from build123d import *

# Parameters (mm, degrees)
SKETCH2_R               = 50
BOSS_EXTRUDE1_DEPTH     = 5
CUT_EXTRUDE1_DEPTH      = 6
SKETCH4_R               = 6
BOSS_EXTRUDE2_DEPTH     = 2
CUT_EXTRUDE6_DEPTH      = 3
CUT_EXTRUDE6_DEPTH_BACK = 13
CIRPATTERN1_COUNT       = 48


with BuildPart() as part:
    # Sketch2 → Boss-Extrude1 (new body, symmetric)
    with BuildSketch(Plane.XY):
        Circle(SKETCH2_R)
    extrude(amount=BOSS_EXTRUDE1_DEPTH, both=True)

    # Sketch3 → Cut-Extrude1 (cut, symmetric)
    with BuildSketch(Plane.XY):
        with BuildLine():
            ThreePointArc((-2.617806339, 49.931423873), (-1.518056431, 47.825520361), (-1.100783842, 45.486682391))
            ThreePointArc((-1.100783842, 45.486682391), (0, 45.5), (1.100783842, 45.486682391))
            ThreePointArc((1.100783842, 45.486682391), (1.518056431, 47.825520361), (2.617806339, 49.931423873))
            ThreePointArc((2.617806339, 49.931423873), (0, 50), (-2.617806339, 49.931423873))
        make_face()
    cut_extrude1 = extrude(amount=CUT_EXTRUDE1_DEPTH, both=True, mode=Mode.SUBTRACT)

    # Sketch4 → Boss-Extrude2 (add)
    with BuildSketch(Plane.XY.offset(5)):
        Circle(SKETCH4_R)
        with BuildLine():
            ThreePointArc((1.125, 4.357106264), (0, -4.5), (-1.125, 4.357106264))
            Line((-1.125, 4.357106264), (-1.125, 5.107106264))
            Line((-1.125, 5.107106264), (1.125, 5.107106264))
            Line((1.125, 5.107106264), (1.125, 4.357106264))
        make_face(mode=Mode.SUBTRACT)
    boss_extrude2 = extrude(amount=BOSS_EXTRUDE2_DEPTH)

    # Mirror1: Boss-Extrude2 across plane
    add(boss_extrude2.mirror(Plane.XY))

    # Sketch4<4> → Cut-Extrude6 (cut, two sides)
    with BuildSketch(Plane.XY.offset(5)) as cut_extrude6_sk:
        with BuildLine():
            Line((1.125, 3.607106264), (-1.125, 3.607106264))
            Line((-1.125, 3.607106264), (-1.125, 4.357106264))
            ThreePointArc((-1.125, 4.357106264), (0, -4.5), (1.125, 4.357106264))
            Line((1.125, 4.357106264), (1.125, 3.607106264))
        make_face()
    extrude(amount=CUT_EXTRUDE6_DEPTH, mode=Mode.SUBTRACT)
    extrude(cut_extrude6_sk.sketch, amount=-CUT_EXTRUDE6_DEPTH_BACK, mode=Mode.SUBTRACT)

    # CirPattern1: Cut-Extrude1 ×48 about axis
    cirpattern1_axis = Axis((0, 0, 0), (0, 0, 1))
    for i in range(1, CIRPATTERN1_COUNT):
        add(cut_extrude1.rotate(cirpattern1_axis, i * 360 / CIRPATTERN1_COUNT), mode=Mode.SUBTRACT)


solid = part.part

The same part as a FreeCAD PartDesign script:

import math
import FreeCAD as App
import Part
import Sketcher
from FreeCAD import Vector
Q = App.Units.Quantity

doc = App.newDocument("Part")
params = doc.addObject("Spreadsheet::Sheet", "Params")
for row, (alias, value) in enumerate([
    ("sketch1_diameter", "100 mm"),
    ("pad1_length", "10 mm"),
    ("sketch2_radius", "50 mm"),
    ("sketch2_radius2", "45.5 mm"),
    ("pocket1_length", "12 mm"),
    ("sketch3_diameter", "12 mm"),
    ("sketch3_radius", "4.5 mm"),
    ("sketch3_width", "2.25 mm"),
    ("sketch3_height", "0.75 mm"),
    ("pad2_length", "2 mm"),
    ("sketch4_radius", "4.5 mm"),
    ("sketch4_width", "2.25 mm"),
    ("sketch4_height", "0.75 mm"),
], start=1):
    params.set(f"A{row}", alias)
    params.set(f"B{row}", "=" + value)
    params.setAlias(f"B{row}", alias)

body = doc.addObject("PartDesign::Body", "Body")

# Sketch on XY plane
sketch1 = body.newObject("Sketcher::SketchObject", "Sketch")
sketch1.AttachmentSupport = (doc.getObject("XY_Plane"), [""])
sketch1.MapMode = "FlatFace"
sketch1.addGeometry(Part.Circle(Vector(0, 0, 0), Vector(0, 0, 1), 50), False)
sketch1.addConstraint(Sketcher.Constraint("Coincident", 0, 3, -1, 1))
sketch1.addConstraint(Sketcher.Constraint("Diameter", 0, Q("100 mm")))
sketch1.setExpression("Constraints[1]", "Params.sketch1_diameter")
pad1 = body.newObject("PartDesign::Pad", "Pad")
pad1.Profile = sketch1
pad1.setExpression("Length", "Params.pad1_length")
pad1.Midplane = True

# Sketch on XY plane
sketch2 = body.newObject("Sketcher::SketchObject", "Sketch001")
sketch2.AttachmentSupport = (doc.getObject("XY_Plane"), [""])
sketch2.MapMode = "FlatFace"
sketch2.addGeometry(Part.ArcOfCircle(Part.Circle(Vector(-8.9, 45.3, 0), Vector(0, 0, 1), 7.8), math.radians(1), math.radians(36)), False)
sketch2.addGeometry(Part.ArcOfCircle(Part.Circle(Vector(0, 0, 0), Vector(0, 0, 1), 45.5), math.radians(88.61), math.radians(91.39)), False)
sketch2.addGeometry(Part.ArcOfCircle(Part.Circle(Vector(8.9, 45.3, 0), Vector(0, 0, 1), 7.8), math.radians(144), math.radians(179)), False)
sketch2.addGeometry(Part.ArcOfCircle(Part.Circle(Vector(0, 0, 0), Vector(0, 0, 1), 50), math.radians(87), math.radians(93)), False)
sketch2.addConstraint(Sketcher.Constraint("Coincident", 0, 1, 1, 2))
sketch2.addConstraint(Sketcher.Constraint("Coincident", 1, 1, 2, 2))
sketch2.addConstraint(Sketcher.Constraint("Coincident", 2, 1, 3, 1))
sketch2.addConstraint(Sketcher.Constraint("Coincident", 3, 2, 0, 2))
sketch2.addConstraint(Sketcher.Constraint("Coincident", 1, 3, -1, 1))
sketch2.addConstraint(Sketcher.Constraint("Coincident", 3, 3, -1, 1))
sketch2.addConstraint(Sketcher.Constraint("Equal", 0, 2))
sketch2.addConstraint(Sketcher.Constraint("Symmetric", 0, 3, 2, 3, -2))
sketch2.addConstraint(Sketcher.Constraint("Radius", 3, Q("50 mm")))
sketch2.addConstraint(Sketcher.Constraint("Radius", 1, Q("45.5 mm")))
sketch2.addConstraint(Sketcher.Constraint("Radius", 0, Q("7.826953 mm")))
sketch2.addConstraint(Sketcher.Constraint("DistanceY", 2, 3, 2, 1, Q("4.634099 mm")))
sketch2.addConstraint(Sketcher.Constraint("DistanceX", 0, 1, 2, 3, Q("10.02623 mm")))
sketch2.setExpression("Constraints[8]", "Params.sketch2_radius")
sketch2.setExpression("Constraints[9]", "Params.sketch2_radius2")
pocket1 = body.newObject("PartDesign::Pocket", "Pocket")
pocket1.Profile = sketch2
pocket1.setExpression("Length", "Params.pocket1_length")
pocket1.Midplane = True

# Sketch on XY plane
sketch3 = body.newObject("Sketcher::SketchObject", "Sketch002")
sketch3.AttachmentSupport = (doc.getObject("XY_Plane"), [""])
sketch3.MapMode = "FlatFace"
sketch3.AttachmentOffset = App.Placement(Vector(0, 0, 5), App.Rotation())
sketch3.addGeometry(Part.Circle(Vector(0, 0, 0), Vector(0, 0, 1), 6), False)
sketch3.addGeometry(Part.LineSegment(Vector(1.1, 5.1, 0), Vector(1.1, 4.4, 0)), False)
sketch3.addGeometry(Part.ArcOfCircle(Part.Circle(Vector(0, 0, 0), Vector(0, 0, 1), 4.5), math.radians(104), math.radians(436)), False)
sketch3.addGeometry(Part.LineSegment(Vector(-1.1, 4.4, 0), Vector(-1.1, 5.1, 0)), False)
sketch3.addGeometry(Part.LineSegment(Vector(-1.1, 5.1, 0), Vector(1.1, 5.1, 0)), False)
sketch3.addConstraint(Sketcher.Constraint("Coincident", 1, 2, 2, 2))
sketch3.addConstraint(Sketcher.Constraint("Coincident", 2, 1, 3, 1))
sketch3.addConstraint(Sketcher.Constraint("Coincident", 3, 2, 4, 1))
sketch3.addConstraint(Sketcher.Constraint("Coincident", 4, 2, 1, 1))
sketch3.addConstraint(Sketcher.Constraint("Vertical", 1))
sketch3.addConstraint(Sketcher.Constraint("Vertical", 3))
sketch3.addConstraint(Sketcher.Constraint("Horizontal", 4))
sketch3.addConstraint(Sketcher.Constraint("Coincident", 0, 3, -1, 1))
sketch3.addConstraint(Sketcher.Constraint("Coincident", 2, 3, -1, 1))
sketch3.addConstraint(Sketcher.Constraint("Horizontal", 1, 2, 2, 1))
sketch3.addConstraint(Sketcher.Constraint("Diameter", 0, Q("12 mm")))
sketch3.addConstraint(Sketcher.Constraint("Radius", 2, Q("4.5 mm")))
sketch3.addConstraint(Sketcher.Constraint("DistanceX", 4, 1, 4, 2, Q("2.25 mm")))
sketch3.addConstraint(Sketcher.Constraint("DistanceY", 1, 2, 1, 1, Q("0.75 mm")))
sketch3.setExpression("Constraints[10]", "Params.sketch3_diameter")
sketch3.setExpression("Constraints[11]", "Params.sketch3_radius")
sketch3.setExpression("Constraints[12]", "Params.sketch3_width")
sketch3.setExpression("Constraints[13]", "Params.sketch3_height")
pad2 = body.newObject("PartDesign::Pad", "Pad001")
pad2.Profile = sketch3
pad2.setExpression("Length", "Params.pad2_length")
doc.recompute()

mirrored = body.newObject("PartDesign::Mirrored", "Mirrored")
mirrored.Originals = [pad2]
mirrored.MirrorPlane = (doc.getObject("XY_Plane"), [""])
body.Tip = mirrored

# Sketch on XY plane
sketch4 = body.newObject("Sketcher::SketchObject", "Sketch003")
sketch4.AttachmentSupport = (doc.getObject("XY_Plane"), [""])
sketch4.MapMode = "FlatFace"
sketch4.AttachmentOffset = App.Placement(Vector(0, 0, 5), App.Rotation())
sketch4.addGeometry(Part.LineSegment(Vector(1.1, 3.6, 0), Vector(-1.1, 3.6, 0)), False)
sketch4.addGeometry(Part.LineSegment(Vector(-1.1, 3.6, 0), Vector(-1.1, 4.4, 0)), False)
sketch4.addGeometry(Part.ArcOfCircle(Part.Circle(Vector(0, 0, 0), Vector(0, 0, 1), 4.5), math.radians(104), math.radians(436)), False)
sketch4.addGeometry(Part.LineSegment(Vector(1.1, 4.4, 0), Vector(1.1, 3.6, 0)), False)
sketch4.addConstraint(Sketcher.Constraint("Coincident", 0, 2, 1, 1))
sketch4.addConstraint(Sketcher.Constraint("Coincident", 1, 2, 2, 1))
sketch4.addConstraint(Sketcher.Constraint("Coincident", 2, 2, 3, 1))
sketch4.addConstraint(Sketcher.Constraint("Coincident", 3, 2, 0, 1))
sketch4.addConstraint(Sketcher.Constraint("Horizontal", 0))
sketch4.addConstraint(Sketcher.Constraint("Vertical", 1))
sketch4.addConstraint(Sketcher.Constraint("Vertical", 3))
sketch4.addConstraint(Sketcher.Constraint("Coincident", 2, 3, -1, 1))
sketch4.addConstraint(Sketcher.Constraint("Horizontal", 1, 2, 2, 2))
sketch4.addConstraint(Sketcher.Constraint("Radius", 2, Q("4.5 mm")))
sketch4.addConstraint(Sketcher.Constraint("DistanceX", 0, 2, 0, 1, Q("2.25 mm")))
sketch4.addConstraint(Sketcher.Constraint("DistanceY", 1, 1, 1, 2, Q("0.75 mm")))
sketch4.setExpression("Constraints[9]", "Params.sketch4_radius")
sketch4.setExpression("Constraints[10]", "Params.sketch4_width")
sketch4.setExpression("Constraints[11]", "Params.sketch4_height")
pocket2 = body.newObject("PartDesign::Pocket", "Pocket001")
pocket2.Profile = sketch4
pocket2.Type = "ThroughAll"
pocket2.Midplane = True
doc.recompute()

polarpattern = body.newObject("PartDesign::PolarPattern", "PolarPattern")
polarpattern.Originals = [pocket1]
polarpattern.Axis = (doc.getObject("Z_Axis"), [""])
polarpattern.Angle = 360
polarpattern.Occurrences = 48
body.Tip = polarpattern

doc.recompute()
